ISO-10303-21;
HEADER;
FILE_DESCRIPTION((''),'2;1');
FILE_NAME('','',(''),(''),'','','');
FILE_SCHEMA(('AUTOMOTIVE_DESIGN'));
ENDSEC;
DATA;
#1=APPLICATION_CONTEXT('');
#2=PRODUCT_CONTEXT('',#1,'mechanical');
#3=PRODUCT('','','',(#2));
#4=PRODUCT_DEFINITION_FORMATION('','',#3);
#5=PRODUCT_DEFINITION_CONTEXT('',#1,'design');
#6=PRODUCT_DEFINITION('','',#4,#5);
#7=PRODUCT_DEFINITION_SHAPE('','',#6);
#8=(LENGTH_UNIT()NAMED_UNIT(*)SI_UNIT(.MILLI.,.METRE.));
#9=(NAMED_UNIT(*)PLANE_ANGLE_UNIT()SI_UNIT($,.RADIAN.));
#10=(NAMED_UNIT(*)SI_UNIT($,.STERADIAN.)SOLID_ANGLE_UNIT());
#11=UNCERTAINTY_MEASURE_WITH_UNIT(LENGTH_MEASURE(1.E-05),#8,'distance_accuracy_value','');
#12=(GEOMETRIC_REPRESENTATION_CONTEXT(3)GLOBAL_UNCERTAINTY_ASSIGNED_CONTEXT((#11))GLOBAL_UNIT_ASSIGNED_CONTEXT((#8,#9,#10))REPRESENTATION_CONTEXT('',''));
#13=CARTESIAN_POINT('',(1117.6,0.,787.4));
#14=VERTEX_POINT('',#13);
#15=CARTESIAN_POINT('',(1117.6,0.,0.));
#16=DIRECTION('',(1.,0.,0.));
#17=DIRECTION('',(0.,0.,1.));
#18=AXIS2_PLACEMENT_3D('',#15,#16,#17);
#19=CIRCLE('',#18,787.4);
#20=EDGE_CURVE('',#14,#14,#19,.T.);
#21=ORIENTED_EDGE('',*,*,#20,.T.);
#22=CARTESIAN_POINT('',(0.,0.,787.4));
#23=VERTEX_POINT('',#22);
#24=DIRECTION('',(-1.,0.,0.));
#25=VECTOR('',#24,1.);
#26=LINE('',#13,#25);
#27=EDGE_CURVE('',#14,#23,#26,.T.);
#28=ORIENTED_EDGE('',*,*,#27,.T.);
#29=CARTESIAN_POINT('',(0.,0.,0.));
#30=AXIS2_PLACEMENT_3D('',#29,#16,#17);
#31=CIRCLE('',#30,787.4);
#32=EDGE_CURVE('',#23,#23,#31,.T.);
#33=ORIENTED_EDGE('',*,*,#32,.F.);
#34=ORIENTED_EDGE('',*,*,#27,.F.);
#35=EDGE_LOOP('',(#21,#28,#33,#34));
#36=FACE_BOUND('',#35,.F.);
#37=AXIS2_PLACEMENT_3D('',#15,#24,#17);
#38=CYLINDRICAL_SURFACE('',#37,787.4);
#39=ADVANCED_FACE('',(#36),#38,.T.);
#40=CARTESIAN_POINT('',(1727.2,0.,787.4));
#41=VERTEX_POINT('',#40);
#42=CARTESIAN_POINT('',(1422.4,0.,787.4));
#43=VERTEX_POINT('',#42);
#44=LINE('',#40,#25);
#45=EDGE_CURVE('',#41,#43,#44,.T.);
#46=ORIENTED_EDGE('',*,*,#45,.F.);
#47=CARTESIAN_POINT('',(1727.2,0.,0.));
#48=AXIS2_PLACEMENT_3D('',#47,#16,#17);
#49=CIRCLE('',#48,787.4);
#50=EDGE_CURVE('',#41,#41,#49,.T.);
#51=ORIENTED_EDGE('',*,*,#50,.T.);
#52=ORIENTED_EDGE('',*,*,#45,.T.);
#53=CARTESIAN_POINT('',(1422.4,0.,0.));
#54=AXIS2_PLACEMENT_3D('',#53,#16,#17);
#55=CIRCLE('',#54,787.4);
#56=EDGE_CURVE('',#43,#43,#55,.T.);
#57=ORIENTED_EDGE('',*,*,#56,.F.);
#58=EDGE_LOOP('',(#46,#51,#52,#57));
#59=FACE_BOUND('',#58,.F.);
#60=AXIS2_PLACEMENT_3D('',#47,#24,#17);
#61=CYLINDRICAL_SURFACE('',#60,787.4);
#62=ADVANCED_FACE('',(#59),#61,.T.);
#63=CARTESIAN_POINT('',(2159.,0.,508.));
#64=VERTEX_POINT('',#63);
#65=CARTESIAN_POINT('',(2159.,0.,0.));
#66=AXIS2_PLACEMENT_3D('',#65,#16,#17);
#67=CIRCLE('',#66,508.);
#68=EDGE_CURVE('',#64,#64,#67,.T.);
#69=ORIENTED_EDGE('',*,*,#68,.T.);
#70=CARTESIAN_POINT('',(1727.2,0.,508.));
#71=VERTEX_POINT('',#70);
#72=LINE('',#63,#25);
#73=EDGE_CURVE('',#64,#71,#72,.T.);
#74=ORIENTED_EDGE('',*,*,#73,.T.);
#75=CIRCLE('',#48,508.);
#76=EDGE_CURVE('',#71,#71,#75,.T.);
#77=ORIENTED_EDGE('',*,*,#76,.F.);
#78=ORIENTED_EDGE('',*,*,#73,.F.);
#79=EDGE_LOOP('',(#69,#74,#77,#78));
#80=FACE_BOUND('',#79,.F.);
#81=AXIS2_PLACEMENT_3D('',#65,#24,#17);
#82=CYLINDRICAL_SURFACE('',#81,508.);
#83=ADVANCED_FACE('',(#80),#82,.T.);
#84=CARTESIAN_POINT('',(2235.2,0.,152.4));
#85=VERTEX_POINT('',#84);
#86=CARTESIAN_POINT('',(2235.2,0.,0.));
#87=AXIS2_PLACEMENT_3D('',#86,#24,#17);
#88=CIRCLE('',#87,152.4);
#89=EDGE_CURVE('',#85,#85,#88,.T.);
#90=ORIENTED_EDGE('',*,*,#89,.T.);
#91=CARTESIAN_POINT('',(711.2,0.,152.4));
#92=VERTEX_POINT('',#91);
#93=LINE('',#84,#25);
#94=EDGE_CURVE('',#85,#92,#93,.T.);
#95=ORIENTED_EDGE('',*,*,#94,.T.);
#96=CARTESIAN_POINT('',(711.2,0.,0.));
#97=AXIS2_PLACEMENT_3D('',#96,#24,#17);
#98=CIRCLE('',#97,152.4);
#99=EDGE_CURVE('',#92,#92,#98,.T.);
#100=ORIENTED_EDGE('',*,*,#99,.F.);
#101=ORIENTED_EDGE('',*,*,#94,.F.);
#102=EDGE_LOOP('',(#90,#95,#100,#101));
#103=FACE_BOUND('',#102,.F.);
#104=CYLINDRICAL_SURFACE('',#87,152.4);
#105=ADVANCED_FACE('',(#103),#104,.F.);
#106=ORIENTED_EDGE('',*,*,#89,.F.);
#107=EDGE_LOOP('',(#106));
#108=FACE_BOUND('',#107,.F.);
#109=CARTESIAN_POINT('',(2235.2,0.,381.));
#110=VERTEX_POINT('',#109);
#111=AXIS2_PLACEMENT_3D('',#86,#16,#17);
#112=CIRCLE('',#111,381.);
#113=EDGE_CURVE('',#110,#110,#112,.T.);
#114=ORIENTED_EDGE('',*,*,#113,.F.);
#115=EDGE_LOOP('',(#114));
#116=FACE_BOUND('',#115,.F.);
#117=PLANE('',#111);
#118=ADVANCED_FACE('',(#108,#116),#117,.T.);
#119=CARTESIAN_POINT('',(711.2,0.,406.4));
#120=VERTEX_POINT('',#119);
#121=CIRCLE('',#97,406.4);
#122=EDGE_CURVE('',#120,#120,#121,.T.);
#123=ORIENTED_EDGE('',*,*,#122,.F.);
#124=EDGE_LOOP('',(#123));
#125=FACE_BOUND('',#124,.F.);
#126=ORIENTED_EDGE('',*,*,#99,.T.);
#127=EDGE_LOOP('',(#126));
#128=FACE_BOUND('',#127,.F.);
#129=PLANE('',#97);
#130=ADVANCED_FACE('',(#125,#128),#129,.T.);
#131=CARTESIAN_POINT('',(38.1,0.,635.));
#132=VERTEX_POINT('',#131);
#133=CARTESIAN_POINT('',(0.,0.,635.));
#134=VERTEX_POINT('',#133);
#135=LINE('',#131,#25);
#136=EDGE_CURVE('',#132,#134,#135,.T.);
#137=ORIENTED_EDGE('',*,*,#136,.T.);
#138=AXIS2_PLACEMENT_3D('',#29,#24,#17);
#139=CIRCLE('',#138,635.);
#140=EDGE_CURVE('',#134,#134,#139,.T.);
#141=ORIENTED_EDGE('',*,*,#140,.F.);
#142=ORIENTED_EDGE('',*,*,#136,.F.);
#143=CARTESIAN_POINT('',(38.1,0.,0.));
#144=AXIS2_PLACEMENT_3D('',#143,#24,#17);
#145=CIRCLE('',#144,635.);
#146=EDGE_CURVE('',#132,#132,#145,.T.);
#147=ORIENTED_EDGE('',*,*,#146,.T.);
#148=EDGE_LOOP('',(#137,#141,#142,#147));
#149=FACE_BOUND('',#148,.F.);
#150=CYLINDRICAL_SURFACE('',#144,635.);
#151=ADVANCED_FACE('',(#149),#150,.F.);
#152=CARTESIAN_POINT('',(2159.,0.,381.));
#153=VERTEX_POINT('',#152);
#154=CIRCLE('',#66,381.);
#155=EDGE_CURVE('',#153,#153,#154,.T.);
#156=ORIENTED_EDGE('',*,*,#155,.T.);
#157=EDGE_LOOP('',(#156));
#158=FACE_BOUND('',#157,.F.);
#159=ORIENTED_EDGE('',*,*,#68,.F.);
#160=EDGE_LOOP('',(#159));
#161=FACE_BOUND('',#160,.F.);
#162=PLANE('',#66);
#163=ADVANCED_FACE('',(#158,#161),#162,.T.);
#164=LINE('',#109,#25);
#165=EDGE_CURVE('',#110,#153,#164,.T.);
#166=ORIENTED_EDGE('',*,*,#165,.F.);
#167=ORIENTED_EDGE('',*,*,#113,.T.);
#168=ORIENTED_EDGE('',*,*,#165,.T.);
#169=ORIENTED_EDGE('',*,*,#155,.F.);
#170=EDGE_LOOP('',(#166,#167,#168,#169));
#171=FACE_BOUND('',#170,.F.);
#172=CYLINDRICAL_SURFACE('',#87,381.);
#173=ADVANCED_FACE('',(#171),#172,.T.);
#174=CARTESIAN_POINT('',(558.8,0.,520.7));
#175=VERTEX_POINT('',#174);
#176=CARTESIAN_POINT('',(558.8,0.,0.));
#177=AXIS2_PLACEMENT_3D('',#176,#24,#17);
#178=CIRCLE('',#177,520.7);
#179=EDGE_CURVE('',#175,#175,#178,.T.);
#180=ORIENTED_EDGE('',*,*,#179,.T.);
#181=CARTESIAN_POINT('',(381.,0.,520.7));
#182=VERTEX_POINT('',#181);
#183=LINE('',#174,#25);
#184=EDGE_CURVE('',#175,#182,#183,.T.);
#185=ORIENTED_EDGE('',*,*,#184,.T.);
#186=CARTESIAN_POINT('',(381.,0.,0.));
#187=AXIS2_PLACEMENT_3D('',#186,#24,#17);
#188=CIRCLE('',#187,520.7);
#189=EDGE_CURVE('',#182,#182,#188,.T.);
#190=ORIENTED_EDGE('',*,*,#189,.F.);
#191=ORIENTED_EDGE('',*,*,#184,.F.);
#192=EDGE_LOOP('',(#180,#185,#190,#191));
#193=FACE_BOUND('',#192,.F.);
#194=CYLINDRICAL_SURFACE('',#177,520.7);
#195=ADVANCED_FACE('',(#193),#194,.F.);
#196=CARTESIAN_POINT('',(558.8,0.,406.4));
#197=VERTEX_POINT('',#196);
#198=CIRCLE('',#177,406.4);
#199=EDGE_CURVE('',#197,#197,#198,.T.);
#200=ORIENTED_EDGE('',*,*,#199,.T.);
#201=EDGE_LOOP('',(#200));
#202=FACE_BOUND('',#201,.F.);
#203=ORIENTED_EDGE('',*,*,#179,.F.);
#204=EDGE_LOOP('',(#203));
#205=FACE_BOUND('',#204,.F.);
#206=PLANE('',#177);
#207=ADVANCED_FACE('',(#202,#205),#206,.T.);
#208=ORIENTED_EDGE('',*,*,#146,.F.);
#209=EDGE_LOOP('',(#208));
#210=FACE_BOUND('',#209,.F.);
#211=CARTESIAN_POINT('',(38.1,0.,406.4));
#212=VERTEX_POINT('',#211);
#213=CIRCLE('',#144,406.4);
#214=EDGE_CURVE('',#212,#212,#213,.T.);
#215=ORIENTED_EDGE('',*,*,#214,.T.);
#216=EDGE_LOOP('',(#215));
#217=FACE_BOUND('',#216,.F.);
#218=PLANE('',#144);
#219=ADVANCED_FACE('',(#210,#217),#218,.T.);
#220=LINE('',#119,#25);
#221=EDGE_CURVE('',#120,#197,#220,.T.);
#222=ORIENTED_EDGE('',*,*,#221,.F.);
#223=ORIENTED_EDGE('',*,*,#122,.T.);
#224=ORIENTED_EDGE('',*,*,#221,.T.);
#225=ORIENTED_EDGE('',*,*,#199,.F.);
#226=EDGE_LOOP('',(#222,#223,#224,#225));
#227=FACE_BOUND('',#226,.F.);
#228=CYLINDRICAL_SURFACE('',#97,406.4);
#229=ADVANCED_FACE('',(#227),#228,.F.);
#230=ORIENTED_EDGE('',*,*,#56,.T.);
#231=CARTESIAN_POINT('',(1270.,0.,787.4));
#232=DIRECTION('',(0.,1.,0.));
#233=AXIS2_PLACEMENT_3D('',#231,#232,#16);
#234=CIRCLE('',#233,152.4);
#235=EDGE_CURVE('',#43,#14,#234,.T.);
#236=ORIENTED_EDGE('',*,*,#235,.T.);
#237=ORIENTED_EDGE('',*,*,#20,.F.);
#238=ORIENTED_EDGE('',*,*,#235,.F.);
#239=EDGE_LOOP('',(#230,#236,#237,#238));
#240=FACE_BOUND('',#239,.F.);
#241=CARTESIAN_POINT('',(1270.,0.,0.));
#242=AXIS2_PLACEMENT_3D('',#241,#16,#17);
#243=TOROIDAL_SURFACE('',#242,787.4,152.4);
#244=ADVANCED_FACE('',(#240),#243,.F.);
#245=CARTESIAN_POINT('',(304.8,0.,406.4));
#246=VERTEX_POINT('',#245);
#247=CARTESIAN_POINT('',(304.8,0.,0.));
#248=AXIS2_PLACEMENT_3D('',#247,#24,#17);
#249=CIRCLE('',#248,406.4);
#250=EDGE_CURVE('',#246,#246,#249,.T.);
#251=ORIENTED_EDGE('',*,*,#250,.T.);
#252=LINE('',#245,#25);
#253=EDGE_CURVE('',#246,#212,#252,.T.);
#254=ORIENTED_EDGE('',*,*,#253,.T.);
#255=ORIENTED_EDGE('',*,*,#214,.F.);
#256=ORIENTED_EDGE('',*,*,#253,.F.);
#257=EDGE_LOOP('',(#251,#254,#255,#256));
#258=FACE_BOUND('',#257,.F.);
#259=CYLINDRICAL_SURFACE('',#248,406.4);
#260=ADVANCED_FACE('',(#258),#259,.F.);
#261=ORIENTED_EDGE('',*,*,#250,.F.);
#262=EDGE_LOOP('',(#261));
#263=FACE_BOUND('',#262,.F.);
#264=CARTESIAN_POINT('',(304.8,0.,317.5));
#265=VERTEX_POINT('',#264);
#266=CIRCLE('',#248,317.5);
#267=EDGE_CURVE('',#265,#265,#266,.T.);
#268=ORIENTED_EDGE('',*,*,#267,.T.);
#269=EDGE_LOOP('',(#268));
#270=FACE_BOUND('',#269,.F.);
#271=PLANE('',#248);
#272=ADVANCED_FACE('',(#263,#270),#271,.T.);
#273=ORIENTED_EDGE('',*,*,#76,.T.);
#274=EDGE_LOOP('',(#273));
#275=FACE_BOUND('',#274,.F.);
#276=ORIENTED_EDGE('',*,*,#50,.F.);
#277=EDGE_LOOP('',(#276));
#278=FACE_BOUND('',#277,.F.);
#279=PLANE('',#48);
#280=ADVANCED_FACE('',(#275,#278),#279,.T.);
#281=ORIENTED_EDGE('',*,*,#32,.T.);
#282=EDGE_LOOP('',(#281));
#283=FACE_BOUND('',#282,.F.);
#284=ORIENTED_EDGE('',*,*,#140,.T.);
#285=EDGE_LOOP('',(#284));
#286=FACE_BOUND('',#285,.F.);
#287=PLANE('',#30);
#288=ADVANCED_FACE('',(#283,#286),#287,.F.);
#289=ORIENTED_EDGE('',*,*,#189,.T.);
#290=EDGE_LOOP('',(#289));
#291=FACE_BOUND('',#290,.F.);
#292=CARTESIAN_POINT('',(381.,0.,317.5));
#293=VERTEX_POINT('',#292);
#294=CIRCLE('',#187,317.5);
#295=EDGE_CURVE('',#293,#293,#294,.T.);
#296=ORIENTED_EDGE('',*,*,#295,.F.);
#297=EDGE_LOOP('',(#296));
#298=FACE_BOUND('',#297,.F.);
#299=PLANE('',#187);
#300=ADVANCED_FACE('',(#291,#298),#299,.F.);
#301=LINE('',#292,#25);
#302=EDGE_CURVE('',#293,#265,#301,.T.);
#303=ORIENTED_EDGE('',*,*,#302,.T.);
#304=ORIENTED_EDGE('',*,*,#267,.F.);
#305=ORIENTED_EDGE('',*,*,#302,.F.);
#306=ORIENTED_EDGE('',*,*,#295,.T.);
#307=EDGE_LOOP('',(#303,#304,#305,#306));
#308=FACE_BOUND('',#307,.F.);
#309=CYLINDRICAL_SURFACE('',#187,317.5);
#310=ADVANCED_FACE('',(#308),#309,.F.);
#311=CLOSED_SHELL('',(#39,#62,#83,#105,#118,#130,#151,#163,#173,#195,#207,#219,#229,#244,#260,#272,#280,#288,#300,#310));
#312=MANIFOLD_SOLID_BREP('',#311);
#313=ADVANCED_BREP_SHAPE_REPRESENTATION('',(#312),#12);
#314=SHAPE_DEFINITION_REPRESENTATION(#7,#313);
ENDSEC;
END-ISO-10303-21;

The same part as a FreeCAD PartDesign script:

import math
import FreeCAD as App
import Part
import Sketcher
Q = App.Units.Quantity


def add_polygon(sketch, points):
    """Adds a closed chain of lines whose ends are joined by coincident constraints."""
    first, n = sketch.GeometryCount, len(points)
    for a, b in zip(points, points[1:] + points[:1]):
        sketch.addGeometry(Part.LineSegment(App.Vector(*a, 0), App.Vector(*b, 0)), False)
    for i in range(n):
        sketch.addConstraint(Sketcher.Constraint("Coincident", first + i, 2, first + (i + 1) % n, 1))

doc = App.newDocument("Part")
body = doc.addObject("PartDesign::Body", "Body")

sketch1 = body.newObject("Sketcher::SketchObject", "Sketch")
sketch1.AttachmentSupport = (doc.getObject("XZ_Plane"), [""])
sketch1.MapMode = "FlatFace"
sketch1.addGeometry([
    Part.LineSegment(App.Vector(0, 787, 0), App.Vector(0, 0, 0)),
    Part.LineSegment(App.Vector(0, 0, 0), App.Vector(2235, 0, 0)),
    Part.LineSegment(App.Vector(2235, 0, 0), App.Vector(2235, 381, 0)),
    Part.LineSegment(App.Vector(2235, 381, 0), App.Vector(2159, 381, 0)),
    Part.LineSegment(App.Vector(2159, 381, 0), App.Vector(2159, 508, 0)),
    Part.LineSegment(App.Vector(2159, 508, 0), App.Vector(1727, 508, 0)),
    Part.LineSegment(App.Vector(1727, 508, 0), App.Vector(1727, 787, 0)),
    Part.LineSegment(App.Vector(1727, 787, 0), App.Vector(1422, 787, 0)),
    Part.ArcOfCircle(Part.Circle(App.Vector(1270, 787, 0), App.Vector(0, 0, 1), 152), math.radians(180), math.radians(360)),
    Part.LineSegment(App.Vector(1118, 787, 0), App.Vector(0, 787, 0)),
], False)
sketch1.addConstraint([
    Sketcher.Constraint("Coincident", 0, 2, 1, 1),
    Sketcher.Constraint("Coincident", 1, 2, 2, 1),
    Sketcher.Constraint("Coincident", 2, 2, 3, 1),
    Sketcher.Constraint("Coincident", 3, 2, 4, 1),
    Sketcher.Constraint("Coincident", 4, 2, 5, 1),
    Sketcher.Constraint("Coincident", 5, 2, 6, 1),
    Sketcher.Constraint("Coincident", 6, 2, 7, 1),
    Sketcher.Constraint("Coincident", 7, 2, 8, 2),
    Sketcher.Constraint("Coincident", 8, 1, 9, 1),
    Sketcher.Constraint("Coincident", 9, 2, 0, 1),
    Sketcher.Constraint("Vertical", 0),
    Sketcher.Constraint("Horizontal", 1),
    Sketcher.Constraint("Vertical", 2),
    Sketcher.Constraint("Horizontal", 3),
    Sketcher.Constraint("Vertical", 4),
    Sketcher.Constraint("Horizontal", 5),
    Sketcher.Constraint("Vertical", 6),
    Sketcher.Constraint("Horizontal", 7),
    Sketcher.Constraint("Horizontal", 9),
    Sketcher.Constraint("Coincident", 0, 2, -1, 1),
    Sketcher.Constraint("Horizontal", 8, 3, 6, 2),
    Sketcher.Constraint("Horizontal", 7, 2, 8, 1),
    Sketcher.Constraint("Radius", 8, Q("6 in")),
    Sketcher.Constraint("DistanceX", 1, 1, 1, 2, Q("88 in")),
    Sketcher.Constraint("DistanceX", 3, 2, 3, 1, Q("3 in")),
    Sketcher.Constraint("DistanceX", 5, 2, 5, 1, Q("17 in")),
    Sketcher.Constraint("DistanceX", 7, 2, 7, 1, Q("12 in")),
    Sketcher.Constraint("DistanceY", 0, 2, 0, 1, Q("31 in")),
    Sketcher.Constraint("DistanceY", 2, 1, 2, 2, Q("15 in")),
    Sketcher.Constraint("DistanceY", 4, 1, 4, 2, Q("5 in")),
])
revolution = body.newObject("PartDesign::Revolution", "Revolution")
revolution.Profile = sketch1
revolution.ReferenceAxis = (sketch1, ["H_Axis"])
revolution.Angle = 360

sketch2 = body.newObject("Sketcher::SketchObject", "Sketch001")
sketch2.AttachmentSupport = (doc.getObject("XZ_Plane"), [""])
sketch2.MapMode = "FlatFace"
add_polygon(sketch2, [(38, 635), (0, 635), (0, 0), (2235, 0), (2235, 152), (711, 152), (711, 406), (559, 406), (559, 521), (381, 521), (381, 318), (305, 318), (305, 406), (38, 406)])
sketch2.addConstraint([
    Sketcher.Constraint("Horizontal", 0),
    Sketcher.Constraint("Vertical", 1),
    Sketcher.Constraint("Horizontal", 2),
    Sketcher.Constraint("Vertical", 3),
    Sketcher.Constraint("Horizontal", 4),
    Sketcher.Constraint("Vertical", 5),
    Sketcher.Constraint("Horizontal", 6),
    Sketcher.Constraint("Vertical", 7),
    Sketcher.Constraint("Horizontal", 8),
    Sketcher.Constraint("Vertical", 9),
    Sketcher.Constraint("Horizontal", 10),
    Sketcher.Constraint("Vertical", 11),
    Sketcher.Constraint("Horizontal", 12),
    Sketcher.Constraint("Vertical", 13),
    Sketcher.Constraint("Coincident", 1, 2, -1, 1),
    Sketcher.Constraint("Horizontal", 6, 2, 11, 2),
    Sketcher.Constraint("Equal", 6, 3),
    Sketcher.Constraint("DistanceX", 2, 1, 2, 2, Q("88 in")),
    Sketcher.Constraint("DistanceX", 4, 2, 4, 1, Q("60 in")),
    Sketcher.Constraint("DistanceX", 6, 2, 6, 1, Q("6 in")),
    Sketcher.Constraint("DistanceX", 8, 2, 8, 1, Q("7 in")),
    Sketcher.Constraint("DistanceX", 10, 2, 10, 1, Q("3 in")),
    Sketcher.Constraint("DistanceY", 1, 2, 1, 1, Q("25 in")),
    Sketcher.Constraint("DistanceY", 5, 1, 5, 2, Q("10 in")),
    Sketcher.Constraint("DistanceY", 9, 2, 9, 1, Q("8 in")),
    Sketcher.Constraint("DistanceX", 0, 2, 0, 1, Q("1.5 in")),
    Sketcher.Constraint("DistanceY", 7, 1, 7, 2, Q("4.5 in")),
])
groove = body.newObject("PartDesign::Groove", "Groove")
groove.Profile = sketch2
groove.ReferenceAxis = (sketch2, ["H_Axis"])
groove.Angle = 360

doc.recompute()
